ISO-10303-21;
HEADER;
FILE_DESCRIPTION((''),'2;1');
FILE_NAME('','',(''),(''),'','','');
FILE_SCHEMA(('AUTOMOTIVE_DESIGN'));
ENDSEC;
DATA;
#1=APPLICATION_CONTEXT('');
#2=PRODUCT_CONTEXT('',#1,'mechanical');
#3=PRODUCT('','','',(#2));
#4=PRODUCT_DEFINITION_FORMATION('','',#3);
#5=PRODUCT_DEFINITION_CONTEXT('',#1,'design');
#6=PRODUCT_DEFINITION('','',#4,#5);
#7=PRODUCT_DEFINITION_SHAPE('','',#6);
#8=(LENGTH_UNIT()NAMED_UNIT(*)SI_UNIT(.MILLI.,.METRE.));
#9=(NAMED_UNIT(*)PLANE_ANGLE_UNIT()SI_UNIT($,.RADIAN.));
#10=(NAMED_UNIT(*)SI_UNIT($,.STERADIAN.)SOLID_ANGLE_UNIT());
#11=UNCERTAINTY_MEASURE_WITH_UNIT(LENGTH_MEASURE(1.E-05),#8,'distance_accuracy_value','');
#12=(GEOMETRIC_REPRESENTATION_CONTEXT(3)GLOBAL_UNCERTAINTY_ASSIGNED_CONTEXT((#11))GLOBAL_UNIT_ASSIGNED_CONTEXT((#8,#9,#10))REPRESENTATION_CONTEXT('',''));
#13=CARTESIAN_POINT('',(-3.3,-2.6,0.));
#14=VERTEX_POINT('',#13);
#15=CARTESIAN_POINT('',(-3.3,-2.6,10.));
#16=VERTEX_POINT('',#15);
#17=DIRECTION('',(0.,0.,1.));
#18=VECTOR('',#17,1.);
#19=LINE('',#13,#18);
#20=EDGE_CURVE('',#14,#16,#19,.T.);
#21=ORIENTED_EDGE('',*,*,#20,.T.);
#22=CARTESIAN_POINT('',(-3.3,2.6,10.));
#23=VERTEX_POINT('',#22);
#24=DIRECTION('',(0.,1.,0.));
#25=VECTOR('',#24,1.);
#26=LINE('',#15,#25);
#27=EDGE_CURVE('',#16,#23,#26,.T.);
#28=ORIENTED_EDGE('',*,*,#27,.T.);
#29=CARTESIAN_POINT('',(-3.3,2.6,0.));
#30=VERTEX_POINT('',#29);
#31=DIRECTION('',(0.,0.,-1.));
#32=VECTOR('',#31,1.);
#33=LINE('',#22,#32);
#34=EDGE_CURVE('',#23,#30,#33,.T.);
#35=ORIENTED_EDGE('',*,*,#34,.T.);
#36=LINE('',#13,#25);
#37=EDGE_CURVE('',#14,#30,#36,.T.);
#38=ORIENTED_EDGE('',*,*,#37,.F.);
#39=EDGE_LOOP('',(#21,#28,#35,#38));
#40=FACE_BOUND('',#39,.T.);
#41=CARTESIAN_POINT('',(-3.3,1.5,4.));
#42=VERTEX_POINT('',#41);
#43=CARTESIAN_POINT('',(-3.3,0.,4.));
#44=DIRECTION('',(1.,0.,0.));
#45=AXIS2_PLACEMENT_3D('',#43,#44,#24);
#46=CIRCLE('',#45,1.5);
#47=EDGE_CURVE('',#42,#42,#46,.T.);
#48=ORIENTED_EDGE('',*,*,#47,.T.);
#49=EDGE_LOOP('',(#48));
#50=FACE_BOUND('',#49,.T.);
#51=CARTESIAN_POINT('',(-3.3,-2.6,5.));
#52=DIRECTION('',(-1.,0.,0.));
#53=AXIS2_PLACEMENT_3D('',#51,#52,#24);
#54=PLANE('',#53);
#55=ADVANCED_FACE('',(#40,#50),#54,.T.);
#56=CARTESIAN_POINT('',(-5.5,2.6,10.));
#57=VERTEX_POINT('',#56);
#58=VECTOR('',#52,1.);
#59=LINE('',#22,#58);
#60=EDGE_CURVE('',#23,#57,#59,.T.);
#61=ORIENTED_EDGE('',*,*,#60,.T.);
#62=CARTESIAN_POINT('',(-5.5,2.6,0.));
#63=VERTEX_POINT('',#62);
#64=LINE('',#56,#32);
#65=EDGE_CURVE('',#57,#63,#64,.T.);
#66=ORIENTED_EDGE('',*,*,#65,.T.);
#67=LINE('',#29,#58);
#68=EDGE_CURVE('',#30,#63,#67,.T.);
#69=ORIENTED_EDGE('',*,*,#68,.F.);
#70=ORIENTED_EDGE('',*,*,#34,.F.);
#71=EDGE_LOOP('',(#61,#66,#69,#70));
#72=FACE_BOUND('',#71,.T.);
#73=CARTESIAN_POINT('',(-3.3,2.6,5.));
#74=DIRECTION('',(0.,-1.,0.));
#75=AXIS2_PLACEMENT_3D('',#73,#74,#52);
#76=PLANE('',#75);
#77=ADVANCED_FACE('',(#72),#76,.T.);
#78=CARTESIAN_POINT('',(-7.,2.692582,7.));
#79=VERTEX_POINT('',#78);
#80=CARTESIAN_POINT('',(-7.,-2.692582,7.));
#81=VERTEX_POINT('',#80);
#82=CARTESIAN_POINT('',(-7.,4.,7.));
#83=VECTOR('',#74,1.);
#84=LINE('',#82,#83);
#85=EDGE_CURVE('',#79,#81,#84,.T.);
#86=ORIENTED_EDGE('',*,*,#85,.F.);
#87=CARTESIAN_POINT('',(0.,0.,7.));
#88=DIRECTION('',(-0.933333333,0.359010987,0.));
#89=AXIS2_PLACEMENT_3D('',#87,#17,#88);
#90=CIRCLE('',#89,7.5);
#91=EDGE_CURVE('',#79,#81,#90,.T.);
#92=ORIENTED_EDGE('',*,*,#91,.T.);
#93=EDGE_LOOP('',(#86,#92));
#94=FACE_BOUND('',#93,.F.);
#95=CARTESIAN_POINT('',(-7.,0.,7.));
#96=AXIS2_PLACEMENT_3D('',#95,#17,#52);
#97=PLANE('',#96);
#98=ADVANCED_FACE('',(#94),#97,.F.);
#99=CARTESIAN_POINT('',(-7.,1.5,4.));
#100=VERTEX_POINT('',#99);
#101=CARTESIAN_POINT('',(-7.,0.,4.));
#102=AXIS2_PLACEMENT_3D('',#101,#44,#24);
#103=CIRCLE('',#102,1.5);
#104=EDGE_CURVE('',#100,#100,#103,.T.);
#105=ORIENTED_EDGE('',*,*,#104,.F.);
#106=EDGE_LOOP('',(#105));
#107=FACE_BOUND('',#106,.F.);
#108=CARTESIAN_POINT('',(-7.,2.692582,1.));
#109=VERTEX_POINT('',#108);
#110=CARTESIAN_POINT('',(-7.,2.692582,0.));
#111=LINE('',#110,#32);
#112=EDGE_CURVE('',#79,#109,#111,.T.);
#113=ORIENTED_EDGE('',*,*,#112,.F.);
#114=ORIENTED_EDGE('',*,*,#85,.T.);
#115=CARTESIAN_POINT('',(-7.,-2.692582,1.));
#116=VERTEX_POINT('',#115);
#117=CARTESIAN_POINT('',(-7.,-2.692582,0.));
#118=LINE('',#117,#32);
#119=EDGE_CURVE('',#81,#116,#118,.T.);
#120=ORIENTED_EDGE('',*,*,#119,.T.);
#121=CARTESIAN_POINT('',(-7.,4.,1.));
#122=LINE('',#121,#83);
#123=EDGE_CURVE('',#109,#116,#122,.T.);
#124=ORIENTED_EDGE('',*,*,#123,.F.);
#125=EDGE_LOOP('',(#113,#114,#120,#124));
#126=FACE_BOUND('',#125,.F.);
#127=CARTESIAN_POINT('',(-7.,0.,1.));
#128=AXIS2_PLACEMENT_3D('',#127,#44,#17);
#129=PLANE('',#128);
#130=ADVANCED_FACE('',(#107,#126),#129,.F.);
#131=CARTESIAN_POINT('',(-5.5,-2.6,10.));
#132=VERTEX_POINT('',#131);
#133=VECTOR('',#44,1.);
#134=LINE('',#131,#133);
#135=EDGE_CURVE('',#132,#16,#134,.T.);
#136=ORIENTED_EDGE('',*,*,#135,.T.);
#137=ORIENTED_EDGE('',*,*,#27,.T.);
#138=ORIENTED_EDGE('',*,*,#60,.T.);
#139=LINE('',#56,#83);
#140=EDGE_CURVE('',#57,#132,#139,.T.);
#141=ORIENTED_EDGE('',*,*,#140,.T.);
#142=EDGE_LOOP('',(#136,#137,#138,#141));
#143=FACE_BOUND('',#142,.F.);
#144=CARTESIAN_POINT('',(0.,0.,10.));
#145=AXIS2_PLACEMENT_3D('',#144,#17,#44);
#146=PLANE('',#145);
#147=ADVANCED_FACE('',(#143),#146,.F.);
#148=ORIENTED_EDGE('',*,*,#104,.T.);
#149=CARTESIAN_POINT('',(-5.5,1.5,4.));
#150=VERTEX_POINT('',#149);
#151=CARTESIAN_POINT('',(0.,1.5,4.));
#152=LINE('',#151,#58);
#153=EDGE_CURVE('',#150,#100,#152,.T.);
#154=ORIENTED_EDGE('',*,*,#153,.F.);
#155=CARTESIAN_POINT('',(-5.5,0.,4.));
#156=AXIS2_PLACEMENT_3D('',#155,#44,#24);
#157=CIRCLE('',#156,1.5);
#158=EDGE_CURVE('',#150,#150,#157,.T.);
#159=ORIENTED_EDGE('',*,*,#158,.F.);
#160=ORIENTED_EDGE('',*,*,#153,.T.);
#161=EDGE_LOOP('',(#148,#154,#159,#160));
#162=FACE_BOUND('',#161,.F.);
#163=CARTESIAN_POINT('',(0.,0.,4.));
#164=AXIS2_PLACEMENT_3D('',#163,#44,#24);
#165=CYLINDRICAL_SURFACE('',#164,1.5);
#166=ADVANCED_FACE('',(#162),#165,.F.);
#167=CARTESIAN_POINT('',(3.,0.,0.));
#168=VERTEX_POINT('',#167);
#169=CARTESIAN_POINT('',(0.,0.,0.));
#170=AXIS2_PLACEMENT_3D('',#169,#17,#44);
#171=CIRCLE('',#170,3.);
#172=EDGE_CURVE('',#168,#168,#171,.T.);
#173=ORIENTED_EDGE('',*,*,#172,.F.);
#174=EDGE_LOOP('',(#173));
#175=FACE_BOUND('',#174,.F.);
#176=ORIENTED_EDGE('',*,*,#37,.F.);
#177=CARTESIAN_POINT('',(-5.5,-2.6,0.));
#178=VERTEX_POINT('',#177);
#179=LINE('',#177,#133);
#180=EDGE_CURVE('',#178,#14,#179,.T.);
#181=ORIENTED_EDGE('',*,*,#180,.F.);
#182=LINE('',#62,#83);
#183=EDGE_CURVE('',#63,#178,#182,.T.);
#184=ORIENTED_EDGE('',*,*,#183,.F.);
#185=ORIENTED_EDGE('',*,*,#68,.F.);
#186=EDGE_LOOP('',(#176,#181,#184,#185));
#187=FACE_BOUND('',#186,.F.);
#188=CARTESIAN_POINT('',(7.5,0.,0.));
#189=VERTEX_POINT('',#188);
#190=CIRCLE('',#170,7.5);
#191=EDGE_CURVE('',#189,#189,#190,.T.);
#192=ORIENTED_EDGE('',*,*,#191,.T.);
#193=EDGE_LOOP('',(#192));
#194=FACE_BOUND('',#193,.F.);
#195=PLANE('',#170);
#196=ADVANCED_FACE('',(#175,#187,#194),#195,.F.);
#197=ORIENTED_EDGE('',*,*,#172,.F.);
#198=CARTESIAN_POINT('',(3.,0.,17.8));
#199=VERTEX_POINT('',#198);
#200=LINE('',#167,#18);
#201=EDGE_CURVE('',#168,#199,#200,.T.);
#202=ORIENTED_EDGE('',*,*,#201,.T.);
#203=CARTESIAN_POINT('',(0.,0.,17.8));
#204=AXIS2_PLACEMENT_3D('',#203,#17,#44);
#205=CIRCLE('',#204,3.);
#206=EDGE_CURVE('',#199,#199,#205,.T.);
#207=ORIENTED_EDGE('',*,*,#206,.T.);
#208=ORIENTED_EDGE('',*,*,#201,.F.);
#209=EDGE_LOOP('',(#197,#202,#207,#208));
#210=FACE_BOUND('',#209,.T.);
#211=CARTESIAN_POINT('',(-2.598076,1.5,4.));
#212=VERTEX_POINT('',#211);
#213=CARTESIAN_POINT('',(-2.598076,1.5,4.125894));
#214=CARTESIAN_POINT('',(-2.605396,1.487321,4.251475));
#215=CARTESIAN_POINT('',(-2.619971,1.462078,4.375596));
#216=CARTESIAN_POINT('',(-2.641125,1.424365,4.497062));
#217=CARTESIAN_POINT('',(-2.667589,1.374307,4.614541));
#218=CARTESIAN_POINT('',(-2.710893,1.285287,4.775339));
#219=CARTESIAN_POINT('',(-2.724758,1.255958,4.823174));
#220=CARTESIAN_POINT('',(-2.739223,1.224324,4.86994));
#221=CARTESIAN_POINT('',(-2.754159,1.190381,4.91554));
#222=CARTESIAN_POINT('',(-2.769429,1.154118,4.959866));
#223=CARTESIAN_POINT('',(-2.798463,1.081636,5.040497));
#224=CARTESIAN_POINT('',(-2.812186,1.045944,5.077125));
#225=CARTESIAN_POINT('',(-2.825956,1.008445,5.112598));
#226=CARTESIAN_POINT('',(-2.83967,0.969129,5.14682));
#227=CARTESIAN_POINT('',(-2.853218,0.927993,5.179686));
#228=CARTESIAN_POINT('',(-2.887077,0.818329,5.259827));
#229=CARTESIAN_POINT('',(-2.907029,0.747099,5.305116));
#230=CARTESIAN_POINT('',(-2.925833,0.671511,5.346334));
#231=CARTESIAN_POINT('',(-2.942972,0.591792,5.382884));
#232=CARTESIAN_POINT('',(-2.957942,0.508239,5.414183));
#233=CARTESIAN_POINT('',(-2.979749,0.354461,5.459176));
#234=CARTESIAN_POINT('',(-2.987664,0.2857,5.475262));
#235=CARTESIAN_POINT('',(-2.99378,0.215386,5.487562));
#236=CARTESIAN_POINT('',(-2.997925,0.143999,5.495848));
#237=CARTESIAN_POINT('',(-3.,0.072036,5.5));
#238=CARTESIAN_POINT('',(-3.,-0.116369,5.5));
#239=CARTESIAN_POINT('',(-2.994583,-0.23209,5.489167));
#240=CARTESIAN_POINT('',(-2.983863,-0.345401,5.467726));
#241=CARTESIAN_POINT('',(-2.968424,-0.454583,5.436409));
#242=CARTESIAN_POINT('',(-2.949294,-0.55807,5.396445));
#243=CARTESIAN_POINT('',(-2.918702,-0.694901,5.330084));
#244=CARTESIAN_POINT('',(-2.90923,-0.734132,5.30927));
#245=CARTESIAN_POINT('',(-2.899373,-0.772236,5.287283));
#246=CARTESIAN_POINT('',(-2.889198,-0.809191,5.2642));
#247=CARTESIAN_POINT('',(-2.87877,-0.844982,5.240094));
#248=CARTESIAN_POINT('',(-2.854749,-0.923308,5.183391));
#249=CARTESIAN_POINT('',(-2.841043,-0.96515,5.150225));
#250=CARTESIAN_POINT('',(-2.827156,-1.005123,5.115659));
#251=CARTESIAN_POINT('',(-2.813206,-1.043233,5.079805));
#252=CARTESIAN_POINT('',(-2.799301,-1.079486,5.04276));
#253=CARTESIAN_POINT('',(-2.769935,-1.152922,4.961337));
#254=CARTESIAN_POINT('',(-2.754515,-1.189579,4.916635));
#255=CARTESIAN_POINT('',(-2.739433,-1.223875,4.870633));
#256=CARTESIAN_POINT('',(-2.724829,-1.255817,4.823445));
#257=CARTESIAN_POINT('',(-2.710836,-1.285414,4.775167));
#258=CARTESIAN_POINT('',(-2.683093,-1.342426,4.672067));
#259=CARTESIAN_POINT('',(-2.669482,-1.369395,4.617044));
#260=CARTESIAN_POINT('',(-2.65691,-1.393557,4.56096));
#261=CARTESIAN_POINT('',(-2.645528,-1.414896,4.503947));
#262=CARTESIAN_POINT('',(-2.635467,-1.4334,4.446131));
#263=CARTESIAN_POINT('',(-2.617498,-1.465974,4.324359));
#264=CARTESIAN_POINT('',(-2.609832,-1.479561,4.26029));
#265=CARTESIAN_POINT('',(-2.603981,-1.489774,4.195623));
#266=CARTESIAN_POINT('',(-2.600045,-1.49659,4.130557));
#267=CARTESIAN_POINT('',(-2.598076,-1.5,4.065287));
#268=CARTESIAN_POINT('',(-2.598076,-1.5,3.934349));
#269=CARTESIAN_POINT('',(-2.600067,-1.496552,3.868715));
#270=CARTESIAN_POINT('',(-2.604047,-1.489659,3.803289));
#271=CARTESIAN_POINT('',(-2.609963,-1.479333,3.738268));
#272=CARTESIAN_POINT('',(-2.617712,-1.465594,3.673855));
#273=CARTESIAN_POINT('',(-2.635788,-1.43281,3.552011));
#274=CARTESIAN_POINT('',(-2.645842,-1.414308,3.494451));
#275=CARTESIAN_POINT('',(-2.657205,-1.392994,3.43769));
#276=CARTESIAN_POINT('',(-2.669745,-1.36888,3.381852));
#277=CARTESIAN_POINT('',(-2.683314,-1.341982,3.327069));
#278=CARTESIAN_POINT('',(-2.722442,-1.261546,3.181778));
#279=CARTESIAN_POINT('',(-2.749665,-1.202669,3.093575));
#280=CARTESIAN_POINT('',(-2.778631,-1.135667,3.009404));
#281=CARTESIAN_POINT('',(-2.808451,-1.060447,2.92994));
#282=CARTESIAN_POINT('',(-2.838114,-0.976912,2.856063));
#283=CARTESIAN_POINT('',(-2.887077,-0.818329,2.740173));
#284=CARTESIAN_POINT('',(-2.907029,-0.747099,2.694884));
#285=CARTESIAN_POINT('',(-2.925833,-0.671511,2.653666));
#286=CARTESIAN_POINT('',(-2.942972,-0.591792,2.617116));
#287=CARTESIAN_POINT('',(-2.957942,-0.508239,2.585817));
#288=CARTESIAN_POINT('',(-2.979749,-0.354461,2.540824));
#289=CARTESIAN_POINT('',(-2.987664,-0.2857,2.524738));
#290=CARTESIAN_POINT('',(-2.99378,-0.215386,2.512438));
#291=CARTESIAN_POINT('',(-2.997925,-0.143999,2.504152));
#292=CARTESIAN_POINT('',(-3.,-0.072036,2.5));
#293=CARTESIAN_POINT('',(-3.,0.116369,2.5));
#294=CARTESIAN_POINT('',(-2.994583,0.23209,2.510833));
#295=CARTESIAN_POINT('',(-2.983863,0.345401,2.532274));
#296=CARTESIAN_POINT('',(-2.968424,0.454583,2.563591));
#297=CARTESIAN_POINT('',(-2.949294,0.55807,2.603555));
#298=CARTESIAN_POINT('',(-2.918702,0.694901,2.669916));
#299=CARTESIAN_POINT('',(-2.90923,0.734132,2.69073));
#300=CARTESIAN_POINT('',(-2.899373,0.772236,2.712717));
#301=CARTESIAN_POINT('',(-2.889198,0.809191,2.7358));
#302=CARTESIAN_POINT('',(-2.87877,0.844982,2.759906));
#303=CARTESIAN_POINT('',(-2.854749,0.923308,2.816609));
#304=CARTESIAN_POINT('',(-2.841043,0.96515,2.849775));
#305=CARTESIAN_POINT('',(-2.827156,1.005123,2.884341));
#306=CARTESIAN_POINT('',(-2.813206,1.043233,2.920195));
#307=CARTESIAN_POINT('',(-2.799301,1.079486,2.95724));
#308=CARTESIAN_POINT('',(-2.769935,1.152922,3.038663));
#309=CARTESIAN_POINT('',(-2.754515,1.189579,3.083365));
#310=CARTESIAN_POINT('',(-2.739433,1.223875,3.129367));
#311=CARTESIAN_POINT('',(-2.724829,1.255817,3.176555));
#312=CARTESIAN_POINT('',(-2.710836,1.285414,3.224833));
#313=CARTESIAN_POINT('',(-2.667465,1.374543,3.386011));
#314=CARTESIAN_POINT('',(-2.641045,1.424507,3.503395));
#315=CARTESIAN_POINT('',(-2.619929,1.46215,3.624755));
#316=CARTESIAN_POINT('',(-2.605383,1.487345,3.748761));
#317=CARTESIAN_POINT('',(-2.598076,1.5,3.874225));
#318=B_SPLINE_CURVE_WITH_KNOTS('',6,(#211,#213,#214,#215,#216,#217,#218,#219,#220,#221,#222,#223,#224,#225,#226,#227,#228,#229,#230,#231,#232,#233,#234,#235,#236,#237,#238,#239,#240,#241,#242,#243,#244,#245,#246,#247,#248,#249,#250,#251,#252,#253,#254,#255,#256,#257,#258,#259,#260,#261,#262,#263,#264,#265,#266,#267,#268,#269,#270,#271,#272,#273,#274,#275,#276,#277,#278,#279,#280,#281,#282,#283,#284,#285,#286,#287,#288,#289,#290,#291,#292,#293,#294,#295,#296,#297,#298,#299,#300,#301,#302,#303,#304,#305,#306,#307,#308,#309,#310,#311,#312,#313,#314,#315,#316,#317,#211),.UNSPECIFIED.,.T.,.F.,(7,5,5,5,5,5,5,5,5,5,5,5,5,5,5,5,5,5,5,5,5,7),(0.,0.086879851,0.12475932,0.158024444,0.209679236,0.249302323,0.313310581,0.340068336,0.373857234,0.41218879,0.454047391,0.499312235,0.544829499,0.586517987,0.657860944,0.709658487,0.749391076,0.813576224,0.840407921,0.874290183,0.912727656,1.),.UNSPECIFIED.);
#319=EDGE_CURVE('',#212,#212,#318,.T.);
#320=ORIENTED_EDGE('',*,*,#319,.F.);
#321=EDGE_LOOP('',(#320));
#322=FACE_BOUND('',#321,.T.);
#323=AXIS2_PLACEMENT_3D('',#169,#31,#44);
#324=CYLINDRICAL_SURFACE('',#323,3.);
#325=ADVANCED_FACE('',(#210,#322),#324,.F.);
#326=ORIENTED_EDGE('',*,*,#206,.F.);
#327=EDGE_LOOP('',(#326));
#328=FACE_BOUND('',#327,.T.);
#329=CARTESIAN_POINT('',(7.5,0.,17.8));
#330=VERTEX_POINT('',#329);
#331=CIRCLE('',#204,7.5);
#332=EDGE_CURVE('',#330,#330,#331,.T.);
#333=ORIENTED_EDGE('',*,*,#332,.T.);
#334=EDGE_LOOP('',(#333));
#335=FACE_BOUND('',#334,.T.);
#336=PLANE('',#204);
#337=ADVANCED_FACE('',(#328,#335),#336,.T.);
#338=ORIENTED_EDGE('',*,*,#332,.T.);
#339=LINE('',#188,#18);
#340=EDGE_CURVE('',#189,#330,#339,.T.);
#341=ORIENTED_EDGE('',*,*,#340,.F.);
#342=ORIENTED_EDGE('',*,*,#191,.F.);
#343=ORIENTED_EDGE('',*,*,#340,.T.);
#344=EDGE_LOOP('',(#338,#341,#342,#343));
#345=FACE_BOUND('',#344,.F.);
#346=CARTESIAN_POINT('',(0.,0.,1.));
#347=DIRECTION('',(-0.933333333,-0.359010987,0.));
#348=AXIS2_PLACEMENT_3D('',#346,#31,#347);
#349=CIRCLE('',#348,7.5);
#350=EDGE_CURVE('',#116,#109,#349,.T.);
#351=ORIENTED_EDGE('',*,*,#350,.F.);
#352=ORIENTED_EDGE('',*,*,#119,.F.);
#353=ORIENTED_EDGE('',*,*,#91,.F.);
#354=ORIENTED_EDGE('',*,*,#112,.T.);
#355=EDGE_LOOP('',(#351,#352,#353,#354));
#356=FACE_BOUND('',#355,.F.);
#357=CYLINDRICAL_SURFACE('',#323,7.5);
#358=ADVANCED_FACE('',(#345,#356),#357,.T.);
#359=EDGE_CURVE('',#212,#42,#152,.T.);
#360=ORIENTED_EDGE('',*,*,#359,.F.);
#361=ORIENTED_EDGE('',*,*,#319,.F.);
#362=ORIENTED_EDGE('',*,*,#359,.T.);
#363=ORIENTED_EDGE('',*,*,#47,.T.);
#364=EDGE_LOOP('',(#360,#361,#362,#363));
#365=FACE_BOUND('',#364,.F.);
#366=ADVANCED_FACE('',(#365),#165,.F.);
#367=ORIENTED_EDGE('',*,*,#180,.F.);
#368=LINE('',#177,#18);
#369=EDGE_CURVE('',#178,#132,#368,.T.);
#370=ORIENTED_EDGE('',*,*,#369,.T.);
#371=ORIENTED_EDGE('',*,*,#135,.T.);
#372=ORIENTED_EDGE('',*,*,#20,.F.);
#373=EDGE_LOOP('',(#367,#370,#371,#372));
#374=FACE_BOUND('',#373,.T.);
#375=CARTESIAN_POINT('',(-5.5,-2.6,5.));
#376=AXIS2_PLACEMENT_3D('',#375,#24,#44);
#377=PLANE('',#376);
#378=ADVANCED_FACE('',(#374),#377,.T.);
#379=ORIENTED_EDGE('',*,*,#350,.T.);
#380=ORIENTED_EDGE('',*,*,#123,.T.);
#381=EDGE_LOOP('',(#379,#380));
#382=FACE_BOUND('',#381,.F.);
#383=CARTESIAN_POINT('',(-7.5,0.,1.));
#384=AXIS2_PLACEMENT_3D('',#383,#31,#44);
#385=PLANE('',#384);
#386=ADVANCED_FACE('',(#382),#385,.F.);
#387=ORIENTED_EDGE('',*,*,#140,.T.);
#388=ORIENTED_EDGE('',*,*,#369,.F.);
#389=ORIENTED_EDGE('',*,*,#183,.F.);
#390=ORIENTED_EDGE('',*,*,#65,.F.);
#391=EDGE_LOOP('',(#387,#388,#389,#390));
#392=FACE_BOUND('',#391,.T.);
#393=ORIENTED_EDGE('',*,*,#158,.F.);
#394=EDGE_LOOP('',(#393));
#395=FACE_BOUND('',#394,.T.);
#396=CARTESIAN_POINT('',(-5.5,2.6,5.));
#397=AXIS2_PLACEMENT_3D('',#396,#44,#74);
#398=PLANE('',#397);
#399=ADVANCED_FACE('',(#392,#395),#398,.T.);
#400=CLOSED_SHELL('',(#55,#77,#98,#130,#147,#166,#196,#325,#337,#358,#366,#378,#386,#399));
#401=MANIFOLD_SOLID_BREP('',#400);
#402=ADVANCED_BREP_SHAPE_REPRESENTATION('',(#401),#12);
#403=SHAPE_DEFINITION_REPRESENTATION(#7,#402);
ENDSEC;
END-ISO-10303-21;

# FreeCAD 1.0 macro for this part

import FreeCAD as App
import Part
import Sketcher

V = App.Vector

doc = App.newDocument("Part")
body = doc.addObject("PartDesign::Body", "Body")

# Sketch on XY plane
sketch1 = body.newObject("Sketcher::SketchObject", "Sketch")
sketch1.AttachmentSupport = (doc.getObject("XY_Plane"), [""])
sketch1.MapMode = "FlatFace"
sketch1.addGeometry(Part.Circle(V(0, 0, 0), V(0, 0, 1), 7.5), False)
sketch1.addGeometry(Part.Circle(V(0, 0, 0), V(0, 0, 1), 3), False)
sketch1.addConstraint(Sketcher.Constraint("Coincident", 0, 3, -1, 1))
sketch1.addConstraint(Sketcher.Constraint("Coincident", 1, 3, -1, 1))
sketch1.addConstraint(Sketcher.Constraint("Diameter", 0, 15.0))
sketch1.addConstraint(Sketcher.Constraint("Diameter", 1, 6.0))
pad1 = body.newObject("PartDesign::Pad", "Pad")
pad1.Profile = sketch1
pad1.Length = 17.8

# Sketch on XY plane
sketch2 = body.newObject("Sketcher::SketchObject", "Sketch001")
sketch2.AttachmentSupport = (doc.getObject("XY_Plane"), [""])
sketch2.MapMode = "FlatFace"
sketch2.AttachmentOffset = App.Placement(V(0, 0, 5), App.Rotation())
sketch2.addGeometry(Part.LineSegment(V(-5.5, 2.6, 0), V(-5.5, -2.6, 0)), False)
sketch2.addGeometry(Part.LineSegment(V(-5.5, -2.6, 0), V(-3.3, -2.6, 0)), False)
sketch2.addGeometry(Part.LineSegment(V(-3.3, -2.6, 0), V(-3.3, 2.6, 0)), False)
sketch2.addGeometry(Part.LineSegment(V(-3.3, 2.6, 0), V(-5.5, 2.6, 0)), False)
sketch2.addConstraint(Sketcher.Constraint("Coincident", 0, 2, 1, 1))
sketch2.addConstraint(Sketcher.Constraint("Coincident", 1, 2, 2, 1))
sketch2.addConstraint(Sketcher.Constraint("Coincident", 2, 2, 3, 1))
sketch2.addConstraint(Sketcher.Constraint("Coincident", 3, 2, 0, 1))
sketch2.addConstraint(Sketcher.Constraint("Vertical", 0))
sketch2.addConstraint(Sketcher.Constraint("Horizontal", 1))
sketch2.addConstraint(Sketcher.Constraint("Vertical", 2))
sketch2.addConstraint(Sketcher.Constraint("Horizontal", 3))
sketch2.addConstraint(Sketcher.Constraint("DistanceX", 1, 1, 1, 2, 2.2))
sketch2.addConstraint(Sketcher.Constraint("DistanceY", 0, 2, 0, 1, 5.2))
sketch2.addConstraint(Sketcher.Constraint("DistanceX", 0, 2, -1, 1, 5.5))
sketch2.addConstraint(Sketcher.Constraint("DistanceY", 0, 2, -1, 1, 2.6))
pocket1 = body.newObject("PartDesign::Pocket", "Pocket")
pocket1.Profile = sketch2
pocket1.Length = 10
pocket1.Midplane = True

# Sketch on YZ plane
sketch3 = body.newObject("Sketcher::SketchObject", "Sketch002")
sketch3.AttachmentSupport = (doc.getObject("YZ_Plane"), [""])
sketch3.MapMode = "FlatFace"
sketch3.addGeometry(Part.Circle(V(0, 4, 0), V(0, 0, 1), 1.5), False)
sketch3.addConstraint(Sketcher.Constraint("PointOnObject", 0, 3, -2))
sketch3.addConstraint(Sketcher.Constraint("Diameter", 0, 3.0))
sketch3.addConstraint(Sketcher.Constraint("DistanceY", -1, 1, 0, 3, 4.0))
pocket2 = body.newObject("PartDesign::Pocket", "Pocket001")
pocket2.Profile = sketch3
pocket2.Length = 8

# Sketch on XZ plane
sketch4 = body.newObject("Sketcher::SketchObject", "Sketch003")
sketch4.AttachmentSupport = (doc.getObject("XZ_Plane"), [""])
sketch4.MapMode = "FlatFace"
sketch4.addGeometry(Part.LineSegment(V(-7, 1, 0), V(-7.5, 1, 0)), False)
sketch4.addGeometry(Part.LineSegment(V(-7.5, 1, 0), V(-7.5, 7, 0)), False)
sketch4.addGeometry(Part.LineSegment(V(-7.5, 7, 0), V(-7, 7, 0)), False)
sketch4.addGeometry(Part.LineSegment(V(-7, 7, 0), V(-7, 1, 0)), False)
sketch4.addConstraint(Sketcher.Constraint("Coincident", 0, 2, 1, 1))
sketch4.addConstraint(Sketcher.Constraint("Coincident", 1, 2, 2, 1))
sketch4.addConstraint(Sketcher.Constraint("Coincident", 2, 2, 3, 1))
sketch4.addConstraint(Sketcher.Constraint("Coincident", 3, 2, 0, 1))
sketch4.addConstraint(Sketcher.Constraint("Horizontal", 0))
sketch4.addConstraint(Sketcher.Constraint("Vertical", 1))
sketch4.addConstraint(Sketcher.Constraint("Horizontal", 2))
sketch4.addConstraint(Sketcher.Constraint("Vertical", 3))
sketch4.addConstraint(Sketcher.Constraint("DistanceY", 1, 1, 1, 2, 6.0))
sketch4.addConstraint(Sketcher.Constraint("DistanceX", 0, 2, 0, 1, 0.5))
sketch4.addConstraint(Sketcher.Constraint("DistanceY", -1, 1, 1, 2, 7.0))
sketch4.addConstraint(Sketcher.Constraint("DistanceX", 2, 2, -1, 1, 7.0))
pocket3 = body.newObject("PartDesign::Pocket", "Pocket002")
pocket3.Profile = sketch4
pocket3.Length = 8
pocket3.Midplane = True

doc.recompute()
